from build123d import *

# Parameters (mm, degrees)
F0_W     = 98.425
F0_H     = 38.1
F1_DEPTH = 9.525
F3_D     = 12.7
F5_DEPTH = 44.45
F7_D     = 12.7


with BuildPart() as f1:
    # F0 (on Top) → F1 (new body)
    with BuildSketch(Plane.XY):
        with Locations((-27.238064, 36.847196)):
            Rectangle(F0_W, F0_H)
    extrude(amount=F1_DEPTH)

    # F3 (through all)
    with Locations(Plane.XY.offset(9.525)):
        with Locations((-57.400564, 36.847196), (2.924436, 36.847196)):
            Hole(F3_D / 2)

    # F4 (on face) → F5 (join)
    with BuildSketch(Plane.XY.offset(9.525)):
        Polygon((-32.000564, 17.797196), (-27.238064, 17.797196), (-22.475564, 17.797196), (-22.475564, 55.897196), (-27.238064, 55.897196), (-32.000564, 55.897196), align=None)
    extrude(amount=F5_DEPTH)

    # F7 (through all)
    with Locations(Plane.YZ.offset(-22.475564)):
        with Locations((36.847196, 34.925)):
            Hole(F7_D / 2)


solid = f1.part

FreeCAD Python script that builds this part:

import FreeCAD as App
import Part
import Sketcher
Q = App.Units.Quantity

doc = App.newDocument("Part")
body = doc.addObject("PartDesign::Body", "Body")

sketch1 = body.newObject("Sketcher::SketchObject", "Sketch")
sketch1.AttachmentSupport = (doc.getObject("XY_Plane"), [""])
sketch1.MapMode = "FlatFace"
sketch1.addGeometry([
    Part.LineSegment(App.Vector(-76, 56, 0), App.Vector(-76, 18, 0)),
    Part.LineSegment(App.Vector(-76, 18, 0), App.Vector(22, 18, 0)),
    Part.LineSegment(App.Vector(22, 18, 0), App.Vector(22, 56, 0)),
    Part.LineSegment(App.Vector(22, 56, 0), App.Vector(-76, 56, 0)),
], False)
sketch1.addConstraint([
    Sketcher.Constraint("Coincident", 0, 2, 1, 1),
    Sketcher.Constraint("Coincident", 1, 2, 2, 1),
    Sketcher.Constraint("Coincident", 2, 2, 3, 1),
    Sketcher.Constraint("Coincident", 3, 2, 0, 1),
    Sketcher.Constraint("Vertical", 0),
    Sketcher.Constraint("Horizontal", 1),
    Sketcher.Constraint("Vertical", 2),
    Sketcher.Constraint("Horizontal", 3),
    Sketcher.Constraint("DistanceY", 0, 2, 0, 1, Q("1.5 in")),
    Sketcher.Constraint("DistanceX", 1, 1, 1, 2, Q("3.875 in")),
    Sketcher.Constraint("DistanceX", 0, 2, -1, 1, Q("76.450564 mm")),
    Sketcher.Constraint("DistanceY", -1, 1, 0, 2, Q("17.797196 mm")),
])
pad1 = body.newObject("PartDesign::Pad", "Pad")
pad1.Profile = sketch1
pad1.Length = Q("0.375 in")

sketch2 = body.newObject("Sketcher::SketchObject", "Sketch001")
sketch2.AttachmentSupport = (doc.getObject("XY_Plane"), [""])
sketch2.MapMode = "FlatFace"
sketch2.AttachmentOffset = App.Placement(App.Vector(0, 0, 0.375 * 25.4), App.Rotation())
sketch2.addGeometry([
    Part.Circle(App.Vector(-57, 37, 0), App.Vector(0, 0, 1), 6),
    Part.Circle(App.Vector(3, 37, 0), App.Vector(0, 0, 1), 6),
], False)
sketch2.addConstraint([
    Sketcher.Constraint("Equal", 0, 1),
    Sketcher.Constraint("Horizontal", 0, 3, 1, 3),
    Sketcher.Constraint("Diameter", 0, Q("0.5 in")),
    Sketcher.Constraint("DistanceX", 0, 3, 1, 3, Q("2.375 in")),
    Sketcher.Constraint("DistanceX", 0, 3, -1, 1, Q("57.400564 mm")),
    Sketcher.Constraint("DistanceY", -1, 1, 0, 3, Q("36.847196 mm")),
])
doc.recompute()
hole = body.newObject("PartDesign::Hole", "Hole")
hole.Profile = sketch2
hole.ThreadType = "None"
hole.Diameter = Q("0.5 in")
hole.DepthType = "ThroughAll"

sketch3 = body.newObject("Sketcher::SketchObject", "Sketch002")
sketch3.AttachmentSupport = (doc.getObject("XY_Plane"), [""])
sketch3.MapMode = "FlatFace"
sketch3.AttachmentOffset = App.Placement(App.Vector(0, 0, 0.375 * 25.4), App.Rotation())
sketch3.addGeometry([
    Part.LineSegment(App.Vector(-32, 18, 0), App.Vector(-22, 18, 0)),
    Part.LineSegment(App.Vector(-22, 18, 0), App.Vector(-22, 56, 0)),
    Part.LineSegment(App.Vector(-22, 56, 0), App.Vector(-32, 56, 0)),
    Part.LineSegment(App.Vector(-32, 56, 0), App.Vector(-32, 18, 0)),
], False)
sketch3.addConstraint([
    Sketcher.Constraint("Coincident", 0, 2, 1, 1),
    Sketcher.Constraint("Coincident", 1, 2, 2, 1),
    Sketcher.Constraint("Coincident", 2, 2, 3, 1),
    Sketcher.Constraint("Coincident", 3, 2, 0, 1),
    Sketcher.Constraint("Horizontal", 0),
    Sketcher.Constraint("Vertical", 1),
    Sketcher.Constraint("Horizontal", 2),
    Sketcher.Constraint("Vertical", 3),
    Sketcher.Constraint("DistanceY", 1, 1, 1, 2, Q("1.5 in")),
    Sketcher.Constraint("DistanceX", 0, 1, 0, 2, Q("0.375 in")),
    Sketcher.Constraint("DistanceX", 0, 2, -1, 1, Q("22.475564 mm")),
    Sketcher.Constraint("DistanceY", -1, 1, 0, 2, Q("17.797196 mm")),
])
pad2 = body.newObject("PartDesign::Pad", "Pad001")
pad2.Profile = sketch3
pad2.Length = Q("1.75 in")

sketch4 = body.newObject("Sketcher::SketchObject", "Sketch003")
sketch4.AttachmentSupport = (doc.getObject("YZ_Plane"), [""])
sketch4.MapMode = "FlatFace"
sketch4.AttachmentOffset = App.Placement(App.Vector(0, 0, -22.475564), App.Rotation())
sketch4.addGeometry(Part.Circle(App.Vector(37, 35, 0), App.Vector(0, 0, 1), 6), False)
sketch4.addConstraint([
    Sketcher.Constraint("Diameter", 0, Q("0.5 in")),
    Sketcher.Constraint("DistanceY", -1, 1, 0, 3, Q("1.375 in")),
    Sketcher.Constraint("DistanceX", -1, 1, 0, 3, Q("36.847196 mm")),
])
doc.recompute()
hole2 = body.newObject("PartDesign::Hole", "Hole001")
hole2.Profile = sketch4
hole2.ThreadType = "None"
hole2.Diameter = Q("0.5 in")
hole2.DepthType = "ThroughAll"

doc.recompute()
